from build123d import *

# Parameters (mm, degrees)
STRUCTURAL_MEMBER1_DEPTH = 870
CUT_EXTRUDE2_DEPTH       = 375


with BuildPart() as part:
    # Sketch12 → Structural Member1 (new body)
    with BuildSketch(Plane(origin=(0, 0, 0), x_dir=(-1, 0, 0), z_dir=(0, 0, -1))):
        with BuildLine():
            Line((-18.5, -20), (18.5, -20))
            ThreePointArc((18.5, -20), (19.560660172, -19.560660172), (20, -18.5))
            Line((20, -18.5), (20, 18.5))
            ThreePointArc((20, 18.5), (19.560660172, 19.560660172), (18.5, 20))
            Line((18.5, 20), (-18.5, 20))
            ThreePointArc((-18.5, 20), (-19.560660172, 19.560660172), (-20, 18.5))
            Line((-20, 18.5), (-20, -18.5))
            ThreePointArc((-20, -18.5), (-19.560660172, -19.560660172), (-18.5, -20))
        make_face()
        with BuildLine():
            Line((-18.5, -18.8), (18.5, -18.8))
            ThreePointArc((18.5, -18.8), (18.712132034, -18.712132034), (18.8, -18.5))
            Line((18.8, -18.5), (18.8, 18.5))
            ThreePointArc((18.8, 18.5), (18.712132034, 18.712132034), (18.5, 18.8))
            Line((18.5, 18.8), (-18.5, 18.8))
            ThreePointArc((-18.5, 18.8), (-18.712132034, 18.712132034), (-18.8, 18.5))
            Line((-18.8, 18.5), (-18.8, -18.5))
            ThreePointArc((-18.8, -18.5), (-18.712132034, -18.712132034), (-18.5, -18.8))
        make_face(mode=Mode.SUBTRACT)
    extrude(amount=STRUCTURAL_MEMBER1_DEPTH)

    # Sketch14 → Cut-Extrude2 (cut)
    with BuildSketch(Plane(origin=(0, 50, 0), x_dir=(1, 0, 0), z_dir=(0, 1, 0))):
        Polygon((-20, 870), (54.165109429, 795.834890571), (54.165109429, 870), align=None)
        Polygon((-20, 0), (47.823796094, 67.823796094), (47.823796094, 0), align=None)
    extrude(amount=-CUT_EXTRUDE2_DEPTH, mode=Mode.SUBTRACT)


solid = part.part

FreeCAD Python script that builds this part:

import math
import FreeCAD as App
import Part
import Sketcher

V = App.Vector


def add_polygon(sketch, points):
    """Adds a closed chain of lines whose ends are joined by coincident constraints."""
    first, n = sketch.GeometryCount, len(points)
    for a, b in zip(points, points[1:] + points[:1]):
        sketch.addGeometry(Part.LineSegment(App.Vector(*a, 0), App.Vector(*b, 0)), False)
    for i in range(n):
        sketch.addConstraint(Sketcher.Constraint("Coincident", first + i, 2, first + (i + 1) % n, 1))

doc = App.newDocument("Part")
body = doc.addObject("PartDesign::Body", "Body")

sketch1 = doc.addObject("Sketcher::SketchObject", "Sketch")
body.addObject(sketch1)
sketch1.AttachmentSupport = (doc.XY_Plane, [""])
sketch1.MapMode = "FlatFace"
sketch1.addGeometry(Part.LineSegment(V(18.5, -20, 0), V(-18.5, -20, 0)), False)
sketch1.addGeometry(Part.ArcOfCircle(Part.Circle(V(-18.5, -18.5, 0), V(0, 0, 1), 1.5), math.radians(180), math.radians(270)), False)
sketch1.addGeometry(Part.LineSegment(V(-20, -18.5, 0), V(-20, 18.5, 0)), False)
sketch1.addGeometry(Part.ArcOfCircle(Part.Circle(V(-18.5, 18.5, 0), V(0, 0, 1), 1.5), math.radians(90), math.radians(180)), False)
sketch1.addGeometry(Part.LineSegment(V(-18.5, 20, 0), V(18.5, 20, 0)), False)
sketch1.addGeometry(Part.ArcOfCircle(Part.Circle(V(18.5, 18.5, 0), V(0, 0, 1), 1.5), math.radians(0), math.radians(90)), False)
sketch1.addGeometry(Part.LineSegment(V(20, 18.5, 0), V(20, -18.5, 0)), False)
sketch1.addGeometry(Part.ArcOfCircle(Part.Circle(V(18.5, -18.5, 0), V(0, 0, 1), 1.5), math.radians(-90), math.radians(0)), False)
sketch1.addGeometry(Part.LineSegment(V(-18.5, -18.8, 0), V(18.5, -18.8, 0)), False)
sketch1.addGeometry(Part.ArcOfCircle(Part.Circle(V(18.5, -18.5, 0), V(0, 0, 1), 0.3), math.radians(-90), math.radians(0)), False)
sketch1.addGeometry(Part.LineSegment(V(18.8, -18.5, 0), V(18.8, 18.5, 0)), False)
sketch1.addGeometry(Part.ArcOfCircle(Part.Circle(V(18.5, 18.5, 0), V(0, 0, 1), 0.3), math.radians(0), math.radians(90)), False)
sketch1.addGeometry(Part.LineSegment(V(18.5, 18.8, 0), V(-18.5, 18.8, 0)), False)
sketch1.addGeometry(Part.ArcOfCircle(Part.Circle(V(-18.5, 18.5, 0), V(0, 0, 1), 0.3), math.radians(90), math.radians(180)), False)
sketch1.addGeometry(Part.LineSegment(V(-18.8, 18.5, 0), V(-18.8, -18.5, 0)), False)
sketch1.addGeometry(Part.ArcOfCircle(Part.Circle(V(-18.5, -18.5, 0), V(0, 0, 1), 0.3), math.radians(-180), math.radians(-90)), False)
sketch1.addConstraint(Sketcher.Constraint("Tangent", 0, 2, 1, 2))
sketch1.addConstraint(Sketcher.Constraint("Tangent", 1, 1, 2, 1))
sketch1.addConstraint(Sketcher.Constraint("Tangent", 2, 2, 3, 2))
sketch1.addConstraint(Sketcher.Constraint("Tangent", 3, 1, 4, 1))
sketch1.addConstraint(Sketcher.Constraint("Tangent", 4, 2, 5, 2))
sketch1.addConstraint(Sketcher.Constraint("Tangent", 5, 1, 6, 1))
sketch1.addConstraint(Sketcher.Constraint("Tangent", 6, 2, 7, 2))
sketch1.addConstraint(Sketcher.Constraint("Tangent", 7, 1, 0, 1))
sketch1.addConstraint(Sketcher.Constraint("Tangent", 8, 2, 9, 1))
sketch1.addConstraint(Sketcher.Constraint("Tangent", 9, 2, 10, 1))
sketch1.addConstraint(Sketcher.Constraint("Tangent", 10, 2, 11, 1))
sketch1.addConstraint(Sketcher.Constraint("Tangent", 11, 2, 12, 1))
sketch1.addConstraint(Sketcher.Constraint("Tangent", 12, 2, 13, 1))
sketch1.addConstraint(Sketcher.Constraint("Tangent", 13, 2, 14, 1))
sketch1.addConstraint(Sketcher.Constraint("Tangent", 14, 2, 15, 1))
sketch1.addConstraint(Sketcher.Constraint("Tangent", 15, 2, 8, 1))
sketch1.addConstraint(Sketcher.Constraint("Horizontal", 0))
sketch1.addConstraint(Sketcher.Constraint("Vertical", 2))
sketch1.addConstraint(Sketcher.Constraint("Horizontal", 4))
sketch1.addConstraint(Sketcher.Constraint("Vertical", 6))
sketch1.addConstraint(Sketcher.Constraint("Horizontal", 8))
sketch1.addConstraint(Sketcher.Constraint("Vertical", 10))
sketch1.addConstraint(Sketcher.Constraint("Horizontal", 12))
sketch1.addConstraint(Sketcher.Constraint("Vertical", 14))
sketch1.addConstraint(Sketcher.Constraint("Coincident", 9, 3, 7, 3))
sketch1.addConstraint(Sketcher.Constraint("Coincident", 11, 3, 5, 3))
sketch1.addConstraint(Sketcher.Constraint("Coincident", 13, 3, 3, 3))
sketch1.addConstraint(Sketcher.Constraint("Equal", 1, 3))
sketch1.addConstraint(Sketcher.Constraint("Equal", 3, 5))
sketch1.addConstraint(Sketcher.Constraint("Equal", 5, 7))
sketch1.addConstraint(Sketcher.Constraint("Equal", 13, 15))
sketch1.addConstraint(Sketcher.Constraint("Symmetric", 1, 3, 5, 3, -1, 1))
sketch1.addConstraint(Sketcher.Constraint("Equal", 12, 2))
sketch1.addConstraint(Sketcher.Constraint("Radius", 1, 1.5))
sketch1.addConstraint(Sketcher.Constraint("Radius", 9, 0.3))
sketch1.addConstraint(Sketcher.Constraint("DistanceX", 0, 2, 0, 1, 37.0))
pad1 = doc.addObject("PartDesign::Pad", "Pad")
body.addObject(pad1)
pad1.Profile = sketch1
pad1.Length = 870
pad1.Reversed = True

sketch2 = doc.addObject("Sketcher::SketchObject", "Sketch001")
body.addObject(sketch2)
sketch2.AttachmentSupport = (doc.XZ_Plane, [""])
sketch2.MapMode = "FlatFace"
sketch2.AttachmentOffset = App.Placement(V(0, 0, -50), App.Rotation())
add_polygon(sketch2, [(-20, -870), (54, -796), (54, -870)])
add_polygon(sketch2, [(48, -68), (-20, 0), (48, 0)])
sketch2.addConstraint(Sketcher.Constraint("Vertical", 1))
sketch2.addConstraint(Sketcher.Constraint("Horizontal", 2))
sketch2.addConstraint(Sketcher.Constraint("Horizontal", 4))
sketch2.addConstraint(Sketcher.Constraint("Vertical", 5))
sketch2.addConstraint(Sketcher.Constraint("PointOnObject", 3, 2, -1))
sketch2.addConstraint(Sketcher.Constraint("Perpendicular", 0, 3))
sketch2.addConstraint(Sketcher.Constraint("Vertical", 2, 2, 3, 2))
sketch2.addConstraint(Sketcher.Constraint("Equal", 2, 1))
sketch2.addConstraint(Sketcher.Constraint("DistanceY", 1, 2, -1, 1, 870.0))
sketch2.addConstraint(Sketcher.Constraint("DistanceX", 2, 2, -1, 1, 20.0))
sketch2.addConstraint(Sketcher.Constraint("DistanceX", 2, 2, 2, 1, 74.165109))
sketch2.addConstraint(Sketcher.Constraint("DistanceX", 4, 1, 4, 2, 67.823796))
pocket1 = doc.addObject("PartDesign::Pocket", "Pocket")
body.addObject(pocket1)
pocket1.Profile = sketch2
pocket1.Length = 375
pocket1.Reversed = True

doc.recompute()
